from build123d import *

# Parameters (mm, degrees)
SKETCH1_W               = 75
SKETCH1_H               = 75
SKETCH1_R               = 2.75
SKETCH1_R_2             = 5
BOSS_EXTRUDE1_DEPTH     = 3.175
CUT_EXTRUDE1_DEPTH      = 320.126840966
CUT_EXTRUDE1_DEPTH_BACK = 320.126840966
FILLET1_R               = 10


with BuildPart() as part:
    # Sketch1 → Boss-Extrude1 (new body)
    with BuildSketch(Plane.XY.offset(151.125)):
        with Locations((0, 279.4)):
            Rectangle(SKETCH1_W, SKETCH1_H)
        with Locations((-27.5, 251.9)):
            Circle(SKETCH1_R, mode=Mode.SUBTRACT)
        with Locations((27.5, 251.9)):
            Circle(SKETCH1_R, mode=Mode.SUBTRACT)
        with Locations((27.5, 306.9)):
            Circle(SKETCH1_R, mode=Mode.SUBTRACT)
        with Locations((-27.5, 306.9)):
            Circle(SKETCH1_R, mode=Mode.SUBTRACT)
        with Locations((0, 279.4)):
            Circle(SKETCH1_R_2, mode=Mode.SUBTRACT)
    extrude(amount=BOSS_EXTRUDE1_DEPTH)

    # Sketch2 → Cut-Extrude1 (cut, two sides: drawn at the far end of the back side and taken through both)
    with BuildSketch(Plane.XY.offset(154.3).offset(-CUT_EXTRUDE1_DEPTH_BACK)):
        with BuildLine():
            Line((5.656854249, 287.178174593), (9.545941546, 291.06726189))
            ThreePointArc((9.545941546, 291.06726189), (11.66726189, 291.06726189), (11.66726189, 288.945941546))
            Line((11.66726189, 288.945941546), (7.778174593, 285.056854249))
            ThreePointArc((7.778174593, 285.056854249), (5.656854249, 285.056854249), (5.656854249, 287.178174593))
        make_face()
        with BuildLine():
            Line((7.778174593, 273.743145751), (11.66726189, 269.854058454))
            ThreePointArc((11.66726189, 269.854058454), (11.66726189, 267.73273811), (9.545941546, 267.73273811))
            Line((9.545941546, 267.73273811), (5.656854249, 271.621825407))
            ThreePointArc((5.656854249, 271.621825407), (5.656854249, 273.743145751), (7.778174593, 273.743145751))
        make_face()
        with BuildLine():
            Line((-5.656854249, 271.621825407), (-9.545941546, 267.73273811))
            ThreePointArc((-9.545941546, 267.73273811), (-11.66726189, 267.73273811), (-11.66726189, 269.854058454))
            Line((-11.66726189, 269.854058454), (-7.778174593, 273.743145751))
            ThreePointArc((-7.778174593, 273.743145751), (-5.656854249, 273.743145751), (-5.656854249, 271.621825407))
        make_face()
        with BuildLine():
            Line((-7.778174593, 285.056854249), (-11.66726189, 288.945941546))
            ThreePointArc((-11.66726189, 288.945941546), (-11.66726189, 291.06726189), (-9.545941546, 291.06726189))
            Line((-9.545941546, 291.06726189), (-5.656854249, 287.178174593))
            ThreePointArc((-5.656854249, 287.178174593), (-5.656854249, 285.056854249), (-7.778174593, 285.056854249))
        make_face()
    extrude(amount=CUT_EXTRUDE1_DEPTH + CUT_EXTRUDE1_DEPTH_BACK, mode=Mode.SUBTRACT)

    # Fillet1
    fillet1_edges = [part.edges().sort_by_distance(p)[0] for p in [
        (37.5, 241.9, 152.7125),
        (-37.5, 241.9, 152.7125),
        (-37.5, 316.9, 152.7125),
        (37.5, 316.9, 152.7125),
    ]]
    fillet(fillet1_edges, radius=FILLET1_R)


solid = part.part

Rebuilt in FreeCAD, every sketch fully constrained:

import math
import FreeCAD as App
import Part
import Sketcher
Q = App.Units.Quantity


def edges_at(feature, points):
    """Names of the edges that pass closest to the given points."""
    edges = feature.Shape.Edges
    near = lambda p: min(range(len(edges)), key=lambda i: edges[i].distToShape(Part.Vertex(*p))[0])
    return sorted({f"Edge{near(p) + 1}" for p in points})

doc = App.newDocument("Part")
params = doc.addObject("Spreadsheet::Sheet", "Params")
for row, (alias, value) in enumerate([
    ("sketch1_diameter", "10 mm"),
    ("sketch1_diameter2", "5.5 mm"),
    ("sketch1_width", "75 mm"),
    ("pad1_length", "3.175 mm"),
    ("sketch2_radius", "1.5 mm"),
    ("sketch2_length", "5.5 mm"),
    ("fillet_radius", "10 mm"),
], start=1):
    params.set(f"A{row}", alias)
    params.set(f"B{row}", "=" + value)
    params.setAlias(f"B{row}", alias)

body = doc.addObject("PartDesign::Body", "Body")

# Sketch on XY plane
sketch1 = body.newObject("Sketcher::SketchObject", "Sketch")
sketch1.AttachmentSupport = (doc.getObject("XY_Plane"), [""])
sketch1.MapMode = "FlatFace"
sketch1.AttachmentOffset = App.Placement(App.Vector(0, 0, 151.125), App.Rotation())
sketch1.addGeometry([
    Part.LineSegment(App.Vector(-37.5, 316.9, 0), App.Vector(-37.5, 241.9, 0)),  # 0
    Part.LineSegment(App.Vector(-37.5, 241.9, 0), App.Vector(37.5, 241.9, 0)),  # 1
    Part.LineSegment(App.Vector(37.5, 241.9, 0), App.Vector(37.5, 316.9, 0)),  # 2
    Part.LineSegment(App.Vector(37.5, 316.9, 0), App.Vector(-37.5, 316.9, 0)),  # 3
    Part.Circle(App.Vector(-27.5, 251.9, 0), App.Vector(0, 0, 1), 2.75),  # 4
    Part.Circle(App.Vector(27.5, 251.9, 0), App.Vector(0, 0, 1), 2.75),  # 5
    Part.Circle(App.Vector(0, 279.4, 0), App.Vector(0, 0, 1), 5),  # 6
    Part.Circle(App.Vector(-27.5, 306.9, 0), App.Vector(0, 0, 1), 2.75),  # 7
    Part.Circle(App.Vector(27.5, 306.9, 0), App.Vector(0, 0, 1), 2.75),  # 8
], False)
sketch1.addConstraint([
    Sketcher.Constraint("Coincident", 0, 2, 1, 1),
    Sketcher.Constraint("Coincident", 1, 2, 2, 1),
    Sketcher.Constraint("Coincident", 2, 2, 3, 1),
    Sketcher.Constraint("Coincident", 3, 2, 0, 1),
    Sketcher.Constraint("Vertical", 0),
    Sketcher.Constraint("Horizontal", 1),
    Sketcher.Constraint("Vertical", 2),
    Sketcher.Constraint("Horizontal", 3),
    Sketcher.Constraint("Equal", 4, 5),
    Sketcher.Constraint("Equal", 5, 7),
    Sketcher.Constraint("Equal", 7, 8),
    Sketcher.Constraint("Symmetric", 4, 3, 5, 3, -2),
    Sketcher.Constraint("Symmetric", 7, 3, 8, 3, -2),
    Sketcher.Constraint("PointOnObject", 6, 3, -2),
    Sketcher.Constraint("Vertical", 4, 3, 7, 3),
    Sketcher.Constraint("Equal", 3, 0),
    Sketcher.Constraint("Diameter", 6, Q("10 mm")),
    Sketcher.Constraint("Diameter", 4, Q("5.5 mm")),
    Sketcher.Constraint("DistanceX", 1, 1, 1, 2, Q("75 mm")),
    Sketcher.Constraint("DistanceX", 4, 3, 5, 3, Q("55 mm")),
    Sketcher.Constraint("DistanceY", 4, 3, 7, 3, Q("55 mm")),
    Sketcher.Constraint("DistanceX", 0, 2, 4, 3, Q("10 mm")),
    Sketcher.Constraint("DistanceY", 0, 2, 4, 3, Q("10 mm")),
    Sketcher.Constraint("DistanceY", -1, 1, 4, 3, Q("251.9 mm")),
    Sketcher.Constraint("DistanceY", -1, 1, 6, 3, Q("279.4 mm")),
])
sketch1.setExpression("Constraints[16]", "Params.sketch1_diameter")
sketch1.setExpression("Constraints[17]", "Params.sketch1_diameter2")
sketch1.setExpression("Constraints[18]", "Params.sketch1_width")
pad1 = body.newObject("PartDesign::Pad", "Pad")
pad1.Profile = sketch1
pad1.setExpression("Length", "Params.pad1_length")

# Sketch on XY plane
sketch2 = body.newObject("Sketcher::SketchObject", "Sketch001")
sketch2.AttachmentSupport = (doc.getObject("XY_Plane"), [""])
sketch2.MapMode = "FlatFace"
sketch2.AttachmentOffset = App.Placement(App.Vector(0, 0, 154.3), App.Rotation())
sketch2.addGeometry([
    Part.LineSegment(App.Vector(9.545942, 291.067262, 0), App.Vector(5.656854, 287.178175, 0)),  # 0
    Part.ArcOfCircle(Part.Circle(App.Vector(6.717514, 286.117514, 0), App.Vector(0, 0, 1), 1.5), math.radians(135), math.radians(315)),  # 1
    Part.LineSegment(App.Vector(7.778175, 285.056854, 0), App.Vector(11.667262, 288.945942, 0)),  # 2
    Part.ArcOfCircle(Part.Circle(App.Vector(10.606602, 290.006602, 0), App.Vector(0, 0, 1), 1.5), math.radians(-45), math.radians(135)),  # 3
    Part.LineSegment(App.Vector(11.667262, 269.854058, 0), App.Vector(7.778175, 273.743146, 0)),  # 4
    Part.ArcOfCircle(Part.Circle(App.Vector(6.717514, 272.682486, 0), App.Vector(0, 0, 1), 1.5), math.radians(45), math.radians(225)),  # 5
    Part.LineSegment(App.Vector(5.656854, 271.621825, 0), App.Vector(9.545942, 267.732738, 0)),  # 6
    Part.ArcOfCircle(Part.Circle(App.Vector(10.606602, 268.793398, 0), App.Vector(0, 0, 1), 1.5), math.radians(-135), math.radians(45)),  # 7
    Part.LineSegment(App.Vector(-9.545942, 267.732738, 0), App.Vector(-5.656854, 271.621825, 0)),  # 8
    Part.ArcOfCircle(Part.Circle(App.Vector(-6.717514, 272.682486, 0), App.Vector(0, 0, 1), 1.5), math.radians(-45), math.radians(135)),  # 9
    Part.LineSegment(App.Vector(-7.778175, 273.743146, 0), App.Vector(-11.667262, 269.854058, 0)),  # 10
    Part.ArcOfCircle(Part.Circle(App.Vector(-10.606602, 268.793398, 0), App.Vector(0, 0, 1), 1.5), math.radians(135), math.radians(315)),  # 11
    Part.LineSegment(App.Vector(-11.667262, 288.945942, 0), App.Vector(-7.778175, 285.056854, 0)),  # 12
    Part.ArcOfCircle(Part.Circle(App.Vector(-6.717514, 286.117514, 0), App.Vector(0, 0, 1), 1.5), math.radians(-135), math.radians(45)),  # 13
    Part.LineSegment(App.Vector(-5.656854, 287.178175, 0), App.Vector(-9.545942, 291.067262, 0)),  # 14
    Part.ArcOfCircle(Part.Circle(App.Vector(-10.606602, 290.006602, 0), App.Vector(0, 0, 1), 1.5), math.radians(45), math.radians(225)),  # 15
], False)
sketch2.addConstraint([
    Sketcher.Constraint("Tangent", 0, 2, 1, 1),
    Sketcher.Constraint("Tangent", 1, 2, 2, 1),
    Sketcher.Constraint("Tangent", 2, 2, 3, 1),
    Sketcher.Constraint("Tangent", 3, 2, 0, 1),
    Sketcher.Constraint("Tangent", 4, 2, 5, 1),
    Sketcher.Constraint("Tangent", 5, 2, 6, 1),
    Sketcher.Constraint("Tangent", 6, 2, 7, 1),
    Sketcher.Constraint("Tangent", 7, 2, 4, 1),
    Sketcher.Constraint("Tangent", 8, 2, 9, 1),
    Sketcher.Constraint("Tangent", 9, 2, 10, 1),
    Sketcher.Constraint("Tangent", 10, 2, 11, 1),
    Sketcher.Constraint("Tangent", 11, 2, 8, 1),
    Sketcher.Constraint("Tangent", 12, 2, 13, 1),
    Sketcher.Constraint("Tangent", 13, 2, 14, 1),
    Sketcher.Constraint("Tangent", 14, 2, 15, 1),
    Sketcher.Constraint("Tangent", 15, 2, 12, 1),
    Sketcher.Constraint("Equal", 1, 3),
    Sketcher.Constraint("Equal", 3, 5),
    Sketcher.Constraint("Equal", 5, 7),
    Sketcher.Constraint("Equal", 7, 9),
    Sketcher.Constraint("Equal", 9, 11),
    Sketcher.Constraint("Equal", 11, 13),
    Sketcher.Constraint("Equal", 13, 15),
    Sketcher.Constraint("Symmetric", 5, 3, 9, 3, -2),
    Sketcher.Constraint("Symmetric", 7, 3, 11, 3, -2),
    Sketcher.Constraint("Symmetric", 1, 3, 13, 3, -2),
    Sketcher.Constraint("Symmetric", 3, 3, 15, 3, -2),
    Sketcher.Constraint("Perpendicular", 2, 4),
    Sketcher.Constraint("Perpendicular", 6, 8),
    Sketcher.Constraint("Vertical", 1, 3, 5, 3),
    Sketcher.Constraint("Vertical", 3, 3, 7, 3),
    Sketcher.Constraint("Radius", 1, Q("1.5 mm")),
    Sketcher.Constraint("Distance", 0, Q("5.5 mm")),
    Sketcher.Constraint("DistanceX", -1, 1, 3, 3, Q("10.606602 mm")),
    Sketcher.Constraint("DistanceY", -1, 1, 3, 3, Q("290.006602 mm")),
    Sketcher.Constraint("DistanceY", -1, 1, 7, 3, Q("268.793398 mm")),
])
sketch2.setExpression("Constraints[31]", "Params.sketch2_radius")
sketch2.setExpression("Constraints[32]", "Params.sketch2_length")
pocket1 = body.newObject("PartDesign::Pocket", "Pocket")
pocket1.Profile = sketch2
pocket1.Type = "ThroughAll"
pocket1.Midplane = True
doc.recompute()

fillet = body.newObject("PartDesign::Fillet", "Fillet")
fillet.Base = (pocket1, edges_at(pocket1, [
    (37.5, 241.9, 152.713),
    (-37.5, 241.9, 152.713),
    (-37.5, 316.9, 152.713),
    (37.5, 316.9, 152.713),
]))
fillet.setExpression("Radius", "Params.fillet_radius")

doc.recompute()
